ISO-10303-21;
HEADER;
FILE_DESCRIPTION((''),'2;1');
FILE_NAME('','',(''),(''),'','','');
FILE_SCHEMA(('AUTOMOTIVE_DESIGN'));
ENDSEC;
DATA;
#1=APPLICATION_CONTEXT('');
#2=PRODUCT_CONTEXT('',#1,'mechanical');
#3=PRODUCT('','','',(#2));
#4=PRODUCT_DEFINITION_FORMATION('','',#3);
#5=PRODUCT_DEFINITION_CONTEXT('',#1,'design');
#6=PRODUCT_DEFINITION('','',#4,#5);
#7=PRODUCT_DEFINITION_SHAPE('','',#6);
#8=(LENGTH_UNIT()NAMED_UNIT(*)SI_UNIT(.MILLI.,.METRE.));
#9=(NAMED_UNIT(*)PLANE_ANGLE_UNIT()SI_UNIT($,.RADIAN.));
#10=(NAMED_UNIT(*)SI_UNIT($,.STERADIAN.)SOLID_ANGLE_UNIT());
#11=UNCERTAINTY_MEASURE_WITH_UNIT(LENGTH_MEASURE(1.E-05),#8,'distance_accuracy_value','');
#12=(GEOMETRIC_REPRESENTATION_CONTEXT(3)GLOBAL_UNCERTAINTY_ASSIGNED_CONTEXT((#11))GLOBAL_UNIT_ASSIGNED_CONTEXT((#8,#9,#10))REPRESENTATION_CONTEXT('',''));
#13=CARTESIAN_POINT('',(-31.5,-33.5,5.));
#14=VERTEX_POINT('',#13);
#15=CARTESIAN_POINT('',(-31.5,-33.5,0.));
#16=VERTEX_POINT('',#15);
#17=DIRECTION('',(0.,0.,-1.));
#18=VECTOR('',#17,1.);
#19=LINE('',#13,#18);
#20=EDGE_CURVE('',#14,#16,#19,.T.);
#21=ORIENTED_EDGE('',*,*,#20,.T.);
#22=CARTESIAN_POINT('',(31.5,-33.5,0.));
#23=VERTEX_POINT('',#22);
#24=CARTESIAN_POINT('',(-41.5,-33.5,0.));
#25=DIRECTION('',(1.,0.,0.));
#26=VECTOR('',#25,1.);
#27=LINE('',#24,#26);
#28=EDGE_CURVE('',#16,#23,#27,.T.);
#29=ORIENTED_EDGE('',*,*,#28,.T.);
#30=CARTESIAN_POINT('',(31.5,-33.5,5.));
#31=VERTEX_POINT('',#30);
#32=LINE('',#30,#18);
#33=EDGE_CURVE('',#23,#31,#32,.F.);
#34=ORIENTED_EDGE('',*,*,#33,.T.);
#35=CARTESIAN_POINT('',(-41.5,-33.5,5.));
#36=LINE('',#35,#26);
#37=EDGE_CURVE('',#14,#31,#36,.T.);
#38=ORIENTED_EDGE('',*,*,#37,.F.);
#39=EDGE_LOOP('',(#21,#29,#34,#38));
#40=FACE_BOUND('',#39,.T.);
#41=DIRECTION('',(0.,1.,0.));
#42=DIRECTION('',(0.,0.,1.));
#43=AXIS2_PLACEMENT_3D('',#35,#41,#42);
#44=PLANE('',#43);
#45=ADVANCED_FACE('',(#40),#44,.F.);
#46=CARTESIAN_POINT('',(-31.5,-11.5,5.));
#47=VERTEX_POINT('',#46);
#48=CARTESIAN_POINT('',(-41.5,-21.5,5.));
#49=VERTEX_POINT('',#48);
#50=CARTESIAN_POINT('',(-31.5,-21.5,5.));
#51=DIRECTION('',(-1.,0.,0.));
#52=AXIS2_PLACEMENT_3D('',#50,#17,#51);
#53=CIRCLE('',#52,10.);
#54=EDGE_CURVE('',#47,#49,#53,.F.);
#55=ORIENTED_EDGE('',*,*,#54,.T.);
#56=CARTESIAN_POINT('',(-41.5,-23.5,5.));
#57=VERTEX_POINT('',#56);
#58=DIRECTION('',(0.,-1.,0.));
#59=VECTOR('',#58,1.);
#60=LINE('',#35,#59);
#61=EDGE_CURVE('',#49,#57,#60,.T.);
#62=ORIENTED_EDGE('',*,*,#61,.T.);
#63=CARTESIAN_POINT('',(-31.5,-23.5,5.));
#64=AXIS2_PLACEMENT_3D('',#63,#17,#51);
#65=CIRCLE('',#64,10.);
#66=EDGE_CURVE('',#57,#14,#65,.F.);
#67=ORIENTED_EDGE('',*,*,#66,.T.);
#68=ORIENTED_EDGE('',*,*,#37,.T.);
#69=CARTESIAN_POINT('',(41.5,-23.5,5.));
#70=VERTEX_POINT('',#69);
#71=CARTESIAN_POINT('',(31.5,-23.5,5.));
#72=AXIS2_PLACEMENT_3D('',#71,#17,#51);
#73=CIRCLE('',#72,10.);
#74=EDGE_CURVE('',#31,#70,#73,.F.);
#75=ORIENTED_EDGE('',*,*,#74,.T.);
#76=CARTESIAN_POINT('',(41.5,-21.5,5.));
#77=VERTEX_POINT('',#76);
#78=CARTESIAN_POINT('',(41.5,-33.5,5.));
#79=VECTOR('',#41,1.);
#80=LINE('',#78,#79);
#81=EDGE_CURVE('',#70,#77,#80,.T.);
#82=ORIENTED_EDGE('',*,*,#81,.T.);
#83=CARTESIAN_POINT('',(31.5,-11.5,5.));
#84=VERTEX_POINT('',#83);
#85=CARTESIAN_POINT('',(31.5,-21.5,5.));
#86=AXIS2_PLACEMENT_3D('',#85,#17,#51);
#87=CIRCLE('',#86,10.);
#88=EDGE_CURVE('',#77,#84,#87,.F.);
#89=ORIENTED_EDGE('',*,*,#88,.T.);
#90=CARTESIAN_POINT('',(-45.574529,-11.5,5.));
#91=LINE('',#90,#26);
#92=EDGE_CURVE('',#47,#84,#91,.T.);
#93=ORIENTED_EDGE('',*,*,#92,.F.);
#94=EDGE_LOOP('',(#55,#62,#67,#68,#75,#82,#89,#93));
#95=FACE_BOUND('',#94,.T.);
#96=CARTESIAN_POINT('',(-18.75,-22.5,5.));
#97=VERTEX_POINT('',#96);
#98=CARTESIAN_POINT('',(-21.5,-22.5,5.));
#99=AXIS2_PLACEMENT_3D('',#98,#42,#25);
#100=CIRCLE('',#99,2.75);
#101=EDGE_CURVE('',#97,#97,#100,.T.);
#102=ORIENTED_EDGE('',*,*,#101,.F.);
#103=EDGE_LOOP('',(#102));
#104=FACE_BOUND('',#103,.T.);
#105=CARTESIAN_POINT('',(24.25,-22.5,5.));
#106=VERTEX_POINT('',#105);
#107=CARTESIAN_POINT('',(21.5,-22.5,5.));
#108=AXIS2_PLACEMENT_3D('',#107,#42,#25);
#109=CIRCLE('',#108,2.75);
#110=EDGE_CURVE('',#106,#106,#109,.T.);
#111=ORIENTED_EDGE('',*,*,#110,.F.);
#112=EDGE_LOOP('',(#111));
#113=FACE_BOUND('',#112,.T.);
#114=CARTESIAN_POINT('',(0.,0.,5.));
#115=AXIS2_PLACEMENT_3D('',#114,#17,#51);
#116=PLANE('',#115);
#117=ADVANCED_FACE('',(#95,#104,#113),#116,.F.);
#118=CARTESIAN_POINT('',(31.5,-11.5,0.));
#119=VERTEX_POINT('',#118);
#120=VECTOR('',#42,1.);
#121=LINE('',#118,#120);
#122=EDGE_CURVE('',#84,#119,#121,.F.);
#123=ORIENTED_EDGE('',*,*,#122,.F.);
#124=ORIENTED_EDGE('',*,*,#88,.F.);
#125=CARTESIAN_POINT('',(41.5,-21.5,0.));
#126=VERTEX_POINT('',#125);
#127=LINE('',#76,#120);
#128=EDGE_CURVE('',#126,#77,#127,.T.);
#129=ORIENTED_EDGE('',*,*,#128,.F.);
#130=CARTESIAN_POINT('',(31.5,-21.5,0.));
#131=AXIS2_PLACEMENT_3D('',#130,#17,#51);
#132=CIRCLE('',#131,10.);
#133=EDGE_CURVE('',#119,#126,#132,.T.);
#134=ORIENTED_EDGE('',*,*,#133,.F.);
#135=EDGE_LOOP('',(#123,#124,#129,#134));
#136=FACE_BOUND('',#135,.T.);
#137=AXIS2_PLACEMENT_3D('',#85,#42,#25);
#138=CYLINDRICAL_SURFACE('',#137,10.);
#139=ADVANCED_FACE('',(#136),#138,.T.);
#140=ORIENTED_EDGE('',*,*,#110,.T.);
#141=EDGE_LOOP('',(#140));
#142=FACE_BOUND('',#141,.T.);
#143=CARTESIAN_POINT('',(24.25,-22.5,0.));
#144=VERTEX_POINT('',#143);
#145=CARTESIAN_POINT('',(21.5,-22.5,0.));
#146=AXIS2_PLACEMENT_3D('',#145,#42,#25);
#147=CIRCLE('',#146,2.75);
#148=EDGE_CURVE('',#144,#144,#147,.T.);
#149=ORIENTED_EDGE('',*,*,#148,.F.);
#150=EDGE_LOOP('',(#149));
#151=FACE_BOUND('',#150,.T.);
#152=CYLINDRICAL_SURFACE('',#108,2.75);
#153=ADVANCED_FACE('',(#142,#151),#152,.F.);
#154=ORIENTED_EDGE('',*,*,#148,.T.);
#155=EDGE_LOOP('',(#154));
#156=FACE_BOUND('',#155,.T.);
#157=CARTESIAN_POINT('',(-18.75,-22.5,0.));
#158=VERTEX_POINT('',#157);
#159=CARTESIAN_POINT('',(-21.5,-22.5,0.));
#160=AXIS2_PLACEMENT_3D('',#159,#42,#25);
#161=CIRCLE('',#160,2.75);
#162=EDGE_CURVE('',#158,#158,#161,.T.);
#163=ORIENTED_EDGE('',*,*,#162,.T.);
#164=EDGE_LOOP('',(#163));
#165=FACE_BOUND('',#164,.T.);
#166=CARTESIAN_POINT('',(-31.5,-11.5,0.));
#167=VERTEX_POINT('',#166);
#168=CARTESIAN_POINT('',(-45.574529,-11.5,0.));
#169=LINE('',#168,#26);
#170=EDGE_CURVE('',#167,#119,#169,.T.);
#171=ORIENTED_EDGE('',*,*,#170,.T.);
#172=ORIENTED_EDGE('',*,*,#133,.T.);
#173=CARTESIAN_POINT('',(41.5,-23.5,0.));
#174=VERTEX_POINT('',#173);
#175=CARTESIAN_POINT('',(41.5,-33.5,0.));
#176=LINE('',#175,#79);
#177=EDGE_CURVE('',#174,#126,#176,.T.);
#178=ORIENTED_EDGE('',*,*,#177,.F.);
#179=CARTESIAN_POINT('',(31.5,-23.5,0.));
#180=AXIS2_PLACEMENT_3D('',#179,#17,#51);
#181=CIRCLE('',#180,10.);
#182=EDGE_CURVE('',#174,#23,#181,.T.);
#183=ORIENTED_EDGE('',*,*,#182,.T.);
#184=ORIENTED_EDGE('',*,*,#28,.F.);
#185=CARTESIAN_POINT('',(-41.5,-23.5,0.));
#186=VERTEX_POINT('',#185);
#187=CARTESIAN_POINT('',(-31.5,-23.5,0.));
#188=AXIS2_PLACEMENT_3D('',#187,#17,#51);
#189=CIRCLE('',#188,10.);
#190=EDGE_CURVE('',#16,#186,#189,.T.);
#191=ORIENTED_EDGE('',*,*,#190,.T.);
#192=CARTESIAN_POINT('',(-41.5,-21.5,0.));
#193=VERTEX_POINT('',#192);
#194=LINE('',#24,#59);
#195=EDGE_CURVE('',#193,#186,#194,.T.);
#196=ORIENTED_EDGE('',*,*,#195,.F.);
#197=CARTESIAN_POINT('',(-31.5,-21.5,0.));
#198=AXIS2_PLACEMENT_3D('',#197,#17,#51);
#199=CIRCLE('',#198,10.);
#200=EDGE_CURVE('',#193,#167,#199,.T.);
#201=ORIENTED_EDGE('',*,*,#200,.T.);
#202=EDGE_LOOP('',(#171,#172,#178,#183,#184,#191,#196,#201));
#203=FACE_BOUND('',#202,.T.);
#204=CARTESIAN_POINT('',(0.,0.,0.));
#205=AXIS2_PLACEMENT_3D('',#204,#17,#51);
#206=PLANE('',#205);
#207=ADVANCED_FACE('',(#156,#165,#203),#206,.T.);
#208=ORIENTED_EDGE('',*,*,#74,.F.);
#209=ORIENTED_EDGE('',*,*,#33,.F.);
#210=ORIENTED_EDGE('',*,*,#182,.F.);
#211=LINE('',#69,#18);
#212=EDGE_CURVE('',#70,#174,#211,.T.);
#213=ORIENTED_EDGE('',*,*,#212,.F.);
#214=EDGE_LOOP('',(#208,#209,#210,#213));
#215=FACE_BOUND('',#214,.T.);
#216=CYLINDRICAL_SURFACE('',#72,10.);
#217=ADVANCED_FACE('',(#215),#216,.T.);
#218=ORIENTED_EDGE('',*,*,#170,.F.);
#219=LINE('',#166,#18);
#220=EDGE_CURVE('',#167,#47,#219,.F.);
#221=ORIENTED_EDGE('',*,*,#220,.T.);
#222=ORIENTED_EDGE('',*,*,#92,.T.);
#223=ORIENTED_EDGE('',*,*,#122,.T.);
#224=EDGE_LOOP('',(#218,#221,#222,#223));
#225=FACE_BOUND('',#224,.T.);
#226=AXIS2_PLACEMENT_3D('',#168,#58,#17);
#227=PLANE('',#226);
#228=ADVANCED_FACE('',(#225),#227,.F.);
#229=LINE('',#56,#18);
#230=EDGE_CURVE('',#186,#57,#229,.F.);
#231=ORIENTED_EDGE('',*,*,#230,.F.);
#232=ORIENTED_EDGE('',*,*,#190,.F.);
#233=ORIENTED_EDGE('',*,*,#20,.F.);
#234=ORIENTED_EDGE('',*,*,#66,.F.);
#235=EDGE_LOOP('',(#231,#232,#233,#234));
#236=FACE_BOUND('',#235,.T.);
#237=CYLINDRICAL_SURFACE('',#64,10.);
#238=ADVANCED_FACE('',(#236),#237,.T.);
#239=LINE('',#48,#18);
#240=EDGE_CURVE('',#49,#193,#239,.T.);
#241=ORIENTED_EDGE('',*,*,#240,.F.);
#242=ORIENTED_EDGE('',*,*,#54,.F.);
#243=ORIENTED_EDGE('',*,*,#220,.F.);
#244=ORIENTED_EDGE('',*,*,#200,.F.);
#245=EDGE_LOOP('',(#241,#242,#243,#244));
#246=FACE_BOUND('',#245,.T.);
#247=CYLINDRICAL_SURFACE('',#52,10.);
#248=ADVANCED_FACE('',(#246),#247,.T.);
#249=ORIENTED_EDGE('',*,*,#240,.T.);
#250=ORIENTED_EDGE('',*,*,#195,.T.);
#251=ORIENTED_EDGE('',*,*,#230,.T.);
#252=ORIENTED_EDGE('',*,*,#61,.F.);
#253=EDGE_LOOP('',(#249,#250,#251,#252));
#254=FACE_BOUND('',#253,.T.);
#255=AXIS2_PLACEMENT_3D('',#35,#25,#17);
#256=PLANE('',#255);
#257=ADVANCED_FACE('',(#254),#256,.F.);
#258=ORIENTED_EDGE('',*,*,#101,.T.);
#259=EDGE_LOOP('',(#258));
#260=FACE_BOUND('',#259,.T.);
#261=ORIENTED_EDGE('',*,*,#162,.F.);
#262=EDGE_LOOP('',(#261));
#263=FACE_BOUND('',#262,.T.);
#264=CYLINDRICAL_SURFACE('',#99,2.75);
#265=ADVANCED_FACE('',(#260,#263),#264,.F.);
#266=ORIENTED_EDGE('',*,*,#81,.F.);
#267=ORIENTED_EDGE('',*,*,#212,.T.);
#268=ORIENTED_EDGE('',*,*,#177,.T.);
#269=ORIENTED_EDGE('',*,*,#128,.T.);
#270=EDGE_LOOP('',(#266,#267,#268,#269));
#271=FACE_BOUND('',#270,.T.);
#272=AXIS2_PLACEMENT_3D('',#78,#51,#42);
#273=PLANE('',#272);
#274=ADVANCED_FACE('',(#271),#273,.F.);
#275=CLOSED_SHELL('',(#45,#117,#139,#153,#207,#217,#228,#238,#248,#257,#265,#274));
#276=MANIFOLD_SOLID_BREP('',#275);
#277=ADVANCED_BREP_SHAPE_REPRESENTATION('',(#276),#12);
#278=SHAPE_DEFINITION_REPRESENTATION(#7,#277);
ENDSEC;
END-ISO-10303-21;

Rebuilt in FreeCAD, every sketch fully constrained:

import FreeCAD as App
import Part
import Sketcher

V = App.Vector


def edges_at(feature, points):
    """Names of the edges that pass closest to the given points."""
    edges = feature.Shape.Edges
    near = lambda p: min(range(len(edges)), key=lambda i: edges[i].distToShape(Part.Vertex(*p))[0])
    return sorted({f"Edge{near(p) + 1}" for p in points})

doc = App.newDocument("Part")
body = doc.addObject("PartDesign::Body", "Body")

# Sketch on XY plane
sketch1 = body.newObject("Sketcher::SketchObject", "Sketch")
sketch1.AttachmentSupport = (doc.getObject("XY_Plane"), [""])
sketch1.MapMode = "FlatFace"
sketch1.addGeometry([
    Part.LineSegment(V(-42, 34, 0), V(-42, -34, 0)),
    Part.LineSegment(V(-42, -34, 0), V(42, -34, 0)),
    Part.LineSegment(V(42, -34, 0), V(42, 34, 0)),
    Part.LineSegment(V(42, 34, 0), V(-42, 34, 0)),
], False)
sketch1.addConstraint([
    Sketcher.Constraint("Coincident", 0, 2, 1, 1),
    Sketcher.Constraint("Coincident", 1, 2, 2, 1),
    Sketcher.Constraint("Coincident", 2, 2, 3, 1),
    Sketcher.Constraint("Coincident", 3, 2, 0, 1),
    Sketcher.Constraint("Vertical", 0),
    Sketcher.Constraint("Horizontal", 1),
    Sketcher.Constraint("Vertical", 2),
    Sketcher.Constraint("Horizontal", 3),
    Sketcher.Constraint("Symmetric", 0, 2, 2, 2, -1, 1),
    Sketcher.Constraint("DistanceX", 1, 1, 1, 2, 83.0),
    Sketcher.Constraint("DistanceY", 0, 2, 0, 1, 67.0),
])
pad1 = body.newObject("PartDesign::Pad", "Pad")
pad1.Profile = sketch1
pad1.Length = 5

# Sketch on XY plane
sketch2 = body.newObject("Sketcher::SketchObject", "Sketch001")
sketch2.AttachmentSupport = (doc.getObject("XY_Plane"), [""])
sketch2.MapMode = "FlatFace"
sketch2.AttachmentOffset = App.Placement(V(0, 0, 5), App.Rotation())
sketch2.addGeometry([
    Part.Circle(V(21.5, -22.5, 0), V(0, 0, 1), 2.8),
    Part.Circle(V(-21.5, -22.5, 0), V(0, 0, 1), 2.8),
], False)
sketch2.addConstraint([
    Sketcher.Constraint("Equal", 0, 1),
    Sketcher.Constraint("Symmetric", 0, 3, 1, 3, -2),
    Sketcher.Constraint("Diameter", 0, 5.5),
    Sketcher.Constraint("DistanceX", 1, 3, 0, 3, 43.0),
    Sketcher.Constraint("DistanceY", 0, 3, -1, 1, 22.5),
])
doc.recompute()
hole = body.newObject("PartDesign::Hole", "Hole")
hole.Profile = sketch2
hole.ThreadType = "None"
hole.Diameter = 5.5
hole.DepthType = "ThroughAll"

# Sketch on XY plane
sketch3 = body.newObject("Sketcher::SketchObject", "Sketch002")
sketch3.AttachmentSupport = (doc.getObject("XY_Plane"), [""])
sketch3.MapMode = "FlatFace"
sketch3.addGeometry([
    Part.Circle(V(32, 28, 0), V(0, 0, 1), 1.7),
    Part.Circle(V(1, 28, 0), V(0, 0, 1), 1.7),
    Part.Circle(V(1, -3, 0), V(0, 0, 1), 1.7),
    Part.Circle(V(32, -3, 0), V(0, 0, 1), 1.7),
], False)
sketch3.addConstraint([
    Sketcher.Constraint("Equal", 0, 1),
    Sketcher.Constraint("Equal", 1, 2),
    Sketcher.Constraint("Equal", 2, 3),
    Sketcher.Constraint("Horizontal", 0, 3, 1, 3),
    Sketcher.Constraint("Horizontal", 2, 3, 3, 3),
    Sketcher.Constraint("Vertical", 1, 3, 2, 3),
    Sketcher.Constraint("Vertical", 0, 3, 3, 3),
    Sketcher.Constraint("Diameter", 0, 3.4),
    Sketcher.Constraint("DistanceX", 1, 3, 0, 3, 31.0),
    Sketcher.Constraint("DistanceY", 2, 3, 1, 3, 31.0),
    Sketcher.Constraint("DistanceX", -1, 1, 0, 3, 32.041076),
    Sketcher.Constraint("DistanceY", -1, 1, 0, 3, 28.000005),
])
doc.recompute()
hole2 = body.newObject("PartDesign::Hole", "Hole001")
hole2.Profile = sketch3
hole2.ThreadType = "None"
hole2.Diameter = 3.4
hole2.DepthType = "ThroughAll"
hole2.Reversed = True

# Sketch on XY plane
sketch4 = body.newObject("Sketcher::SketchObject", "Sketch003")
sketch4.AttachmentSupport = (doc.getObject("XY_Plane"), [""])
sketch4.MapMode = "FlatFace"
sketch4.AttachmentOffset = App.Placement(V(0, 0, 5), App.Rotation())
sketch4.addGeometry(Part.Circle(V(17, 13, 0), V(0, 0, 1), 11), False)
sketch4.addConstraint([
    Sketcher.Constraint("Diameter", 0, 22.1),
    Sketcher.Constraint("DistanceX", -1, 1, 0, 3, 16.541077),
    Sketcher.Constraint("DistanceY", -1, 1, 0, 3, 12.500005),
])
pocket1 = body.newObject("PartDesign::Pocket", "Pocket")
pocket1.Profile = sketch4
pocket1.Type = "ThroughAll"
doc.recompute()

fillet = body.newObject("PartDesign::Fillet", "Fillet")
fillet.Base = (pocket1, edges_at(pocket1, [
    (41.5, -33.5, 2.5),
    (-41.5, -33.5, 2.5),
    (-41.5, 33.5, 2.5),
    (41.5, 33.5, 2.5),
]))
fillet.Radius = 10

# Sketch on XY plane
sketch5 = body.newObject("Sketcher::SketchObject", "Sketch004")
sketch5.AttachmentSupport = (doc.getObject("XY_Plane"), [""])
sketch5.MapMode = "FlatFace"
sketch5.AttachmentOffset = App.Placement(V(0, 0, 5), App.Rotation())
sketch5.addGeometry([
    Part.LineSegment(V(-46, 37, 0), V(-46, -12, 0)),
    Part.LineSegment(V(-46, -12, 0), V(51, -12, 0)),
    Part.LineSegment(V(51, -12, 0), V(51, 37, 0)),
    Part.LineSegment(V(51, 37, 0), V(-46, 37, 0)),
], False)
sketch5.addConstraint([
    Sketcher.Constraint("Coincident", 0, 2, 1, 1),
    Sketcher.Constraint("Coincident", 1, 2, 2, 1),
    Sketcher.Constraint("Coincident", 2, 2, 3, 1),
    Sketcher.Constraint("Coincident", 3, 2, 0, 1),
    Sketcher.Constraint("Vertical", 0),
    Sketcher.Constraint("Horizontal", 1),
    Sketcher.Constraint("Vertical", 2),
    Sketcher.Constraint("Horizontal", 3),
    Sketcher.Constraint("DistanceY", 0, 2, -1, 1, 11.5),
    Sketcher.Constraint("DistanceX", 1, 1, 1, 2, 96.91358),
    Sketcher.Constraint("DistanceY", 0, 2, 0, 1, 48.462171),
    Sketcher.Constraint("DistanceX", 0, 2, -1, 1, 45.574529),
])
pocket2 = body.newObject("PartDesign::Pocket", "Pocket001")
pocket2.Profile = sketch5
pocket2.Type = "ThroughAll"
doc.recompute()

fillet2 = body.newObject("PartDesign::Fillet", "Fillet001")
fillet2.Base = (pocket2, edges_at(pocket2, [(41.5, -11.5, 2.5), (-41.5, -11.5, 2.5)]))
fillet2.Radius = 10

doc.recompute()
